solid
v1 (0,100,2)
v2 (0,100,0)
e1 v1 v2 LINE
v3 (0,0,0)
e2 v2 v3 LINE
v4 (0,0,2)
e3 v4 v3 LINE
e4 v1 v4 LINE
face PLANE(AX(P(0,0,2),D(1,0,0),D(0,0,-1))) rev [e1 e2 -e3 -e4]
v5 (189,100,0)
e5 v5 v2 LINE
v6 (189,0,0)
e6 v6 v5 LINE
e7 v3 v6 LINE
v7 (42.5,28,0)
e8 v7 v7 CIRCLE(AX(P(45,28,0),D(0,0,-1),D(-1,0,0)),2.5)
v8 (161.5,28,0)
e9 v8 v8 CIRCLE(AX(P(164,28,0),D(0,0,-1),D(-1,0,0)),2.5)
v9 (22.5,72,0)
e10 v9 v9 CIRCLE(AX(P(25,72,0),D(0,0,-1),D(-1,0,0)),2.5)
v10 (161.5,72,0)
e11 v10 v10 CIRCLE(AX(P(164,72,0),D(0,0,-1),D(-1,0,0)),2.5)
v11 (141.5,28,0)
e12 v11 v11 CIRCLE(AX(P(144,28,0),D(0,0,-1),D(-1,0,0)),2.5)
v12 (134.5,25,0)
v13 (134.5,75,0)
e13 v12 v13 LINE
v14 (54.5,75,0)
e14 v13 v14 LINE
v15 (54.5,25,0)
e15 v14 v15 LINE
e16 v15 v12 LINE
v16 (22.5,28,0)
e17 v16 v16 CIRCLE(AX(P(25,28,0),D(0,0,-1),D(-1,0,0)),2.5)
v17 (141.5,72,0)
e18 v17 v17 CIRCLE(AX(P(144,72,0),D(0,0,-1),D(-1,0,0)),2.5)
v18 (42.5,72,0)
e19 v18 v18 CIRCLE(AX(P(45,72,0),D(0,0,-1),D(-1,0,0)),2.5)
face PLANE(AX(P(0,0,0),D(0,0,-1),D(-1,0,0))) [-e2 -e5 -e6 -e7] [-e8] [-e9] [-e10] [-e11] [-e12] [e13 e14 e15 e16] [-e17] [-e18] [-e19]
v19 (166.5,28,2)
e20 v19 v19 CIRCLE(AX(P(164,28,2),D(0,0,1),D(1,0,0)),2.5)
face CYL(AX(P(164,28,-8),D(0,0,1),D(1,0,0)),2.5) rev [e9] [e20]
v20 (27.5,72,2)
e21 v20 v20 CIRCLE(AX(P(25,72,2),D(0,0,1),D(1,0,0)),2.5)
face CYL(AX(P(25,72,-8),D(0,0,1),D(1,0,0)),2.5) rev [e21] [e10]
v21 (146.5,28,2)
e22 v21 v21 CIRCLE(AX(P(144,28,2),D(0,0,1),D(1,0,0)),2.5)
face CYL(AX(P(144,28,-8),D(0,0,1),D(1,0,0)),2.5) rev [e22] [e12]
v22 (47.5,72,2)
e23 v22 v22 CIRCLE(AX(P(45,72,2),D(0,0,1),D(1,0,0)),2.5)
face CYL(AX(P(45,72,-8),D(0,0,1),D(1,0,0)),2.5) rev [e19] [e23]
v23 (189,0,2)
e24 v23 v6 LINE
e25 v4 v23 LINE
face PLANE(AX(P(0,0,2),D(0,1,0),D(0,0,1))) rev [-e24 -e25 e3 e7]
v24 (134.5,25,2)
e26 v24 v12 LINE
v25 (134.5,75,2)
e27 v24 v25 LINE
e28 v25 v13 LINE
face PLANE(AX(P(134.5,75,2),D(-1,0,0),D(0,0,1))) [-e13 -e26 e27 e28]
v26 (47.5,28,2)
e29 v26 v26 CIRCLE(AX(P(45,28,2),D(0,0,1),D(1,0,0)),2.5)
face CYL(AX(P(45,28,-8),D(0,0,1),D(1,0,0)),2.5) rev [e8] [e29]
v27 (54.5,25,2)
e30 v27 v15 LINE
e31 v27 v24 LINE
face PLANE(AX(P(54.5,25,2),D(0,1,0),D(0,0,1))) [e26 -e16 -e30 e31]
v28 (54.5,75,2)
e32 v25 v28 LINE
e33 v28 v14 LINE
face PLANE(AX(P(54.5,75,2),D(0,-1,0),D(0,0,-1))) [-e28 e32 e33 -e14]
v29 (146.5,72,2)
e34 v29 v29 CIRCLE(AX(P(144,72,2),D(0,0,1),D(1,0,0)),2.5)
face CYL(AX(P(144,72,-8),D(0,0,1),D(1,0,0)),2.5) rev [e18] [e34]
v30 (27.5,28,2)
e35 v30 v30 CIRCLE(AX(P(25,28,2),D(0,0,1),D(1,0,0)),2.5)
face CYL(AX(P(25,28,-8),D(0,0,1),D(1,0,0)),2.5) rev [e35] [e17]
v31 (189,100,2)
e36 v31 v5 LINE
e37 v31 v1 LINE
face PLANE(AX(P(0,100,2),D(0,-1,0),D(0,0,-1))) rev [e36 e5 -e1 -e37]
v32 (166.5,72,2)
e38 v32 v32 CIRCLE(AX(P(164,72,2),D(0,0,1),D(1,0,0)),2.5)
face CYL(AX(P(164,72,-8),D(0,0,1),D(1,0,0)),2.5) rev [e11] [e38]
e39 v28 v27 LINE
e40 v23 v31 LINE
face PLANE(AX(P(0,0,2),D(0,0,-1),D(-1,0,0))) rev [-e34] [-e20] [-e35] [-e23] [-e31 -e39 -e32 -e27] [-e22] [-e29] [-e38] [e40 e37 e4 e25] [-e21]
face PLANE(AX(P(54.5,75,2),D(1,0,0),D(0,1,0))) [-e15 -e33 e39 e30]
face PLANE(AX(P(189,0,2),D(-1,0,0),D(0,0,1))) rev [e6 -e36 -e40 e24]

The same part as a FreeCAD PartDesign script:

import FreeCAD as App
import Part
import Sketcher

V = App.Vector


def add_polygon(sketch, points):
    """Adds a closed chain of lines whose ends are joined by coincident constraints."""
    first, n = sketch.GeometryCount, len(points)
    for a, b in zip(points, points[1:] + points[:1]):
        sketch.addGeometry(Part.LineSegment(App.Vector(*a, 0), App.Vector(*b, 0)), False)
    for i in range(n):
        sketch.addConstraint(Sketcher.Constraint("Coincident", first + i, 2, first + (i + 1) % n, 1))

doc = App.newDocument("Part")
body = doc.addObject("PartDesign::Body", "Body")

# Sketch on XY plane
sketch1 = body.newObject("Sketcher::SketchObject", "Sketch")
sketch1.AttachmentSupport = (doc.getObject("XY_Plane"), [""])
sketch1.MapMode = "FlatFace"
add_polygon(sketch1, [(0, 100), (0, 0), (189, 0), (189, 100)])  # lines 0-3
add_polygon(sketch1, [(134, 25), (54, 25), (54, 75), (134, 75)])  # lines 4-7
sketch1.addConstraint([
    Sketcher.Constraint("Vertical", 0),
    Sketcher.Constraint("Horizontal", 1),
    Sketcher.Constraint("Vertical", 2),
    Sketcher.Constraint("Horizontal", 3),
    Sketcher.Constraint("Horizontal", 4),
    Sketcher.Constraint("Vertical", 5),
    Sketcher.Constraint("Horizontal", 6),
    Sketcher.Constraint("Vertical", 7),
    Sketcher.Constraint("Coincident", 0, 2, -1, 1),
    Sketcher.Constraint("DistanceX", 1, 1, 1, 2, 189.0),
    Sketcher.Constraint("DistanceX", 4, 2, 4, 1, 80.0),
    Sketcher.Constraint("DistanceY", 0, 2, 0, 1, 100.0),
    Sketcher.Constraint("DistanceY", 5, 1, 5, 2, 50.0),
    Sketcher.Constraint("DistanceY", -1, 1, 4, 2, 25.0),
    Sketcher.Constraint("DistanceX", -1, 1, 4, 2, 54.5),
])
pad1 = body.newObject("PartDesign::Pad", "Pad")
pad1.Profile = sketch1
pad1.Length = 2

# Sketch on XY plane
sketch2 = body.newObject("Sketcher::SketchObject", "Sketch001")
sketch2.AttachmentSupport = (doc.getObject("XY_Plane"), [""])
sketch2.MapMode = "FlatFace"
sketch2.AttachmentOffset = App.Placement(V(0, 0, 2), App.Rotation())
sketch2.addGeometry([
    Part.Circle(V(25, 72, 0), V(0, 0, 1), 2.5),  # 0
    Part.Circle(V(45, 72, 0), V(0, 0, 1), 2.5),  # 1
    Part.Circle(V(25, 28, 0), V(0, 0, 1), 2.5),  # 2
    Part.Circle(V(45, 28, 0), V(0, 0, 1), 2.5),  # 3
    Part.Circle(V(144, 72, 0), V(0, 0, 1), 2.5),  # 4
    Part.Circle(V(164, 72, 0), V(0, 0, 1), 2.5),  # 5
    Part.Circle(V(144, 28, 0), V(0, 0, 1), 2.5),  # 6
    Part.Circle(V(164, 28, 0), V(0, 0, 1), 2.5),  # 7
], False)
sketch2.addConstraint([
    Sketcher.Constraint("Equal", 0, 1),
    Sketcher.Constraint("Equal", 1, 2),
    Sketcher.Constraint("Equal", 2, 3),
    Sketcher.Constraint("Equal", 3, 4),
    Sketcher.Constraint("Equal", 4, 5),
    Sketcher.Constraint("Equal", 5, 6),
    Sketcher.Constraint("Equal", 6, 7),
    Sketcher.Constraint("Horizontal", 0, 3, 1, 3),
    Sketcher.Constraint("Horizontal", 2, 3, 3, 3),
    Sketcher.Constraint("Horizontal", 1, 3, 4, 3),
    Sketcher.Constraint("Horizontal", 4, 3, 5, 3),
    Sketcher.Constraint("Horizontal", 3, 3, 6, 3),
    Sketcher.Constraint("Horizontal", 6, 3, 7, 3),
    Sketcher.Constraint("Vertical", 0, 3, 2, 3),
    Sketcher.Constraint("Vertical", 1, 3, 3, 3),
    Sketcher.Constraint("Vertical", 4, 3, 6, 3),
    Sketcher.Constraint("Vertical", 5, 3, 7, 3),
    Sketcher.Constraint("Diameter", 0, 5.0),
    Sketcher.Constraint("DistanceX", -1, 1, 0, 3, 25.0),
    Sketcher.Constraint("DistanceY", -1, 1, 0, 3, 72.0),
    Sketcher.Constraint("DistanceX", -1, 1, 1, 3, 45.0),
    Sketcher.Constraint("DistanceY", -1, 1, 2, 3, 28.0),
    Sketcher.Constraint("DistanceX", -1, 1, 4, 3, 144.0),
    Sketcher.Constraint("DistanceX", -1, 1, 5, 3, 164.0),
])
pocket1 = body.newObject("PartDesign::Pocket", "Pocket")
pocket1.Profile = sketch2
pocket1.Length = 10

doc.recompute()
